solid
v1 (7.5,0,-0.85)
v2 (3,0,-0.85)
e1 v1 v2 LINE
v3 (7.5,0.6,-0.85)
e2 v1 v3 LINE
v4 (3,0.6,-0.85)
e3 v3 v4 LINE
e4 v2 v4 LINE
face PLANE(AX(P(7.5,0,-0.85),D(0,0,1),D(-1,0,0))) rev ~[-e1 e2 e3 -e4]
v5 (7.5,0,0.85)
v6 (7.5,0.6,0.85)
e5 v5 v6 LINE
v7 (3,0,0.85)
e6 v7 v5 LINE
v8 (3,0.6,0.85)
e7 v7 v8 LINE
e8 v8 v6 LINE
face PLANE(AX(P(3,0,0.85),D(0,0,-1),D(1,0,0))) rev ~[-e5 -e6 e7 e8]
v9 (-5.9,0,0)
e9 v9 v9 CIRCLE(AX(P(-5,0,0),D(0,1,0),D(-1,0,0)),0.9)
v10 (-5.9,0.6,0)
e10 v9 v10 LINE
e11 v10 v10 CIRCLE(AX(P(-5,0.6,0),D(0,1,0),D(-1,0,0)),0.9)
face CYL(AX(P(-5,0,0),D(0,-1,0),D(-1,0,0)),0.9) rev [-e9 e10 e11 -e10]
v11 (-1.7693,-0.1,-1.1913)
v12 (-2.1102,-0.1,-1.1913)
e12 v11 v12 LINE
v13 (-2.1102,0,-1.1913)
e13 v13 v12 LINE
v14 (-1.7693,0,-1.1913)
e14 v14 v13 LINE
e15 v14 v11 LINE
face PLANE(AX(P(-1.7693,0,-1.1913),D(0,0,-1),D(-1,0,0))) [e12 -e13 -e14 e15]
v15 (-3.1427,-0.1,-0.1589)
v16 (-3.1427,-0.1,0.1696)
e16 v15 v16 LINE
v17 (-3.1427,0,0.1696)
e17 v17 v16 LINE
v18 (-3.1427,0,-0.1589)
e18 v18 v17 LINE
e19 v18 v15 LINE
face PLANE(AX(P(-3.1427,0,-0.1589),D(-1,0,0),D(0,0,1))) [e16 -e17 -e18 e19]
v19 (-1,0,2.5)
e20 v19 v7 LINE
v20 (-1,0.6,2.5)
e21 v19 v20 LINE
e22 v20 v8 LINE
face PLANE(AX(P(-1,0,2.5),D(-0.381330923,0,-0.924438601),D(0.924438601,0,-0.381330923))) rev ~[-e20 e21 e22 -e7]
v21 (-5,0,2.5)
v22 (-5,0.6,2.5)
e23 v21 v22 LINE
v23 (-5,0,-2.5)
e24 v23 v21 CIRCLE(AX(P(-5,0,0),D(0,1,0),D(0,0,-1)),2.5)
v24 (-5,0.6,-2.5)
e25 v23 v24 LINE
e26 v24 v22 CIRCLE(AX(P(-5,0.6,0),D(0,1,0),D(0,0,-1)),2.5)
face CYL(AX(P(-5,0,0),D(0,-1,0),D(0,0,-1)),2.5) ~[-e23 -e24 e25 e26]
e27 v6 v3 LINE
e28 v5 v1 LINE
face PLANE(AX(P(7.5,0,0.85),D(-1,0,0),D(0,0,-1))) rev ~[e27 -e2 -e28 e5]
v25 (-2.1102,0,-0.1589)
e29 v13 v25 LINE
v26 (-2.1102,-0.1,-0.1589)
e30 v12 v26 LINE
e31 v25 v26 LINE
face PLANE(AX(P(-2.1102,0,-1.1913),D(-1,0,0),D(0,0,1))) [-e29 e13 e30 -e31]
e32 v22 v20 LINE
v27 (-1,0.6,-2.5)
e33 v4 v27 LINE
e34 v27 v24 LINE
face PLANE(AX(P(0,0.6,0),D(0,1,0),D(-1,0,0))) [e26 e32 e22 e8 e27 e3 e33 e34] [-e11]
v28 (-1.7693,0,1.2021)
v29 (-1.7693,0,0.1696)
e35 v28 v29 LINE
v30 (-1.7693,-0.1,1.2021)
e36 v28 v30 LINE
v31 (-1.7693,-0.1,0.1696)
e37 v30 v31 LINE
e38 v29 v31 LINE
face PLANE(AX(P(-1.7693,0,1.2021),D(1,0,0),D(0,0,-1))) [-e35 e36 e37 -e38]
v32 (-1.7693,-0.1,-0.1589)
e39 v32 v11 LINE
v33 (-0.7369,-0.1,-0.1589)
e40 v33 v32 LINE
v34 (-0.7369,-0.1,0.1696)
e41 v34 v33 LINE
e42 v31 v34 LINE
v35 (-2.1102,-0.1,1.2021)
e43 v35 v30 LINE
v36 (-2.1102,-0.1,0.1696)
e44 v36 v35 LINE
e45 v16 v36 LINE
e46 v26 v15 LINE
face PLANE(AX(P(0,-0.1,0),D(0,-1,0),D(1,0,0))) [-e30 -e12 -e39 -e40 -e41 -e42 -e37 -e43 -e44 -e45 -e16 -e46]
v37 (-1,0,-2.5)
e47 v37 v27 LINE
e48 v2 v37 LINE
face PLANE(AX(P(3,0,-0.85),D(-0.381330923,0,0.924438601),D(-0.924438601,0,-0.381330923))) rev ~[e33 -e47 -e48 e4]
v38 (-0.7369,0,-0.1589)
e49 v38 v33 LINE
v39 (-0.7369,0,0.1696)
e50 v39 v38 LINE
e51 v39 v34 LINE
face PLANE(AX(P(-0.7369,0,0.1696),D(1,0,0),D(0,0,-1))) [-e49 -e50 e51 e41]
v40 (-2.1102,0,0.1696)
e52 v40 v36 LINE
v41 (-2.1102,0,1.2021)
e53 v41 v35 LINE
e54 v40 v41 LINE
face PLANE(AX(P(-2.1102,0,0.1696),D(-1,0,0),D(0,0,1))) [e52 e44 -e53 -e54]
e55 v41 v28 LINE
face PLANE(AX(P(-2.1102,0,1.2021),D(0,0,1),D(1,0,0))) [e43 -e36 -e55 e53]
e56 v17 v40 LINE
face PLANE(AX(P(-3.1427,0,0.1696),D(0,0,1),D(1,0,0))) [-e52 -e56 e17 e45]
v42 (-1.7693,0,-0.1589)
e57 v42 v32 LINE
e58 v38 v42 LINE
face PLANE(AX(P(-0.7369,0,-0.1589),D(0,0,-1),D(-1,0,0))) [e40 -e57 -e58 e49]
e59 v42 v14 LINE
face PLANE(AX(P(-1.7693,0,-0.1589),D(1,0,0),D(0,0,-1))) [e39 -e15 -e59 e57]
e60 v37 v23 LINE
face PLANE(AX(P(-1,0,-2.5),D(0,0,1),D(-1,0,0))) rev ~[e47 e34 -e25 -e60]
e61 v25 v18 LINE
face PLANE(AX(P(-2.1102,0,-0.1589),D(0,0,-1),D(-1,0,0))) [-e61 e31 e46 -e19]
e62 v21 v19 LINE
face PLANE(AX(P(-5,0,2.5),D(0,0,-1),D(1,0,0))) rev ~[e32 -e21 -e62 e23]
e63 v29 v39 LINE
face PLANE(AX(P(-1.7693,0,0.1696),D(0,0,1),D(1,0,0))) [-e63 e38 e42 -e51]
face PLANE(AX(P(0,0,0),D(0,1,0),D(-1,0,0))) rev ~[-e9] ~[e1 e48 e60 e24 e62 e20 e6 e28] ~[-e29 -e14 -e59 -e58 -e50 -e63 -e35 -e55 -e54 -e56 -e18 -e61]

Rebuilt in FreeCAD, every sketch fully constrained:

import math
import FreeCAD as App
import Part
import Sketcher


def add_polygon(sketch, points):
    """Adds a closed chain of lines whose ends are joined by coincident constraints."""
    first, n = sketch.GeometryCount, len(points)
    for a, b in zip(points, points[1:] + points[:1]):
        sketch.addGeometry(Part.LineSegment(App.Vector(*a, 0), App.Vector(*b, 0)), False)
    for i in range(n):
        sketch.addConstraint(Sketcher.Constraint("Coincident", first + i, 2, first + (i + 1) % n, 1))

doc = App.newDocument("Part")
params = doc.addObject("Spreadsheet::Sheet", "Params")
for row, (alias, value) in enumerate([
    ("sketch1_diameter", "1.8 mm"),
    ("sketch1_radius", "2.5 mm"),
    ("sketch1_width", "4 mm"),
    ("sketch1_width2", "4.5 mm"),
    ("sketch1_height", "1.7 mm"),
    ("pad1_length", "0.6 mm"),
    ("pad2_length", "0.1 mm"),
], start=1):
    params.set(f"A{row}", alias)
    params.set(f"B{row}", "=" + value)
    params.setAlias(f"B{row}", alias)

body = doc.addObject("PartDesign::Body", "Body")

sketch1 = body.newObject("Sketcher::SketchObject", "Sketch")
sketch1.AttachmentSupport = (doc.getObject("XZ_Plane"), [""])
sketch1.MapMode = "FlatFace"
sketch1.addGeometry([
    Part.LineSegment(App.Vector(3, 0.8, 0), App.Vector(7.5, 0.8, 0)),
    Part.LineSegment(App.Vector(7.5, 0.8, 0), App.Vector(7.5, -0.8, 0)),
    Part.LineSegment(App.Vector(7.5, -0.8, 0), App.Vector(3, -0.8, 0)),
    Part.LineSegment(App.Vector(3, -0.8, 0), App.Vector(-1, -2.5, 0)),
    Part.LineSegment(App.Vector(-1, -2.5, 0), App.Vector(-5, -2.5, 0)),
    Part.ArcOfCircle(Part.Circle(App.Vector(-5, 0, 0), App.Vector(0, 0, 1), 2.5), math.radians(90), math.radians(270)),
    Part.LineSegment(App.Vector(-5, 2.5, 0), App.Vector(-1, 2.5, 0)),
    Part.LineSegment(App.Vector(-1, 2.5, 0), App.Vector(3, 0.8, 0)),
    Part.Circle(App.Vector(-5, 0, 0), App.Vector(0, 0, 1), 0.9),
], False)
sketch1.addConstraint([
    Sketcher.Constraint("Coincident", 0, 2, 1, 1),
    Sketcher.Constraint("Coincident", 1, 2, 2, 1),
    Sketcher.Constraint("Coincident", 2, 2, 3, 1),
    Sketcher.Constraint("Coincident", 3, 2, 4, 1),
    Sketcher.Constraint("Tangent", 4, 2, 5, 2),
    Sketcher.Constraint("Tangent", 5, 1, 6, 1),
    Sketcher.Constraint("Coincident", 6, 2, 7, 1),
    Sketcher.Constraint("Coincident", 7, 2, 0, 1),
    Sketcher.Constraint("Horizontal", 0),
    Sketcher.Constraint("Vertical", 1),
    Sketcher.Constraint("Horizontal", 2),
    Sketcher.Constraint("Horizontal", 4),
    Sketcher.Constraint("Horizontal", 6),
    Sketcher.Constraint("Coincident", 8, 3, 5, 3),
    Sketcher.Constraint("Symmetric", 3, 2, 6, 2, -1),
    Sketcher.Constraint("Symmetric", 2, 2, 7, 2, -1),
    Sketcher.Constraint("Diameter", 8, 1.8),
    Sketcher.Constraint("Radius", 5, 2.5),
    Sketcher.Constraint("DistanceX", 4, 2, 4, 1, 4.0),
    Sketcher.Constraint("DistanceX", 0, 1, 0, 2, 4.5),
    Sketcher.Constraint("DistanceY", 1, 2, 1, 1, 1.7),
    Sketcher.Constraint("DistanceX", 5, 3, -1, 1, 5.0),
    Sketcher.Constraint("DistanceX", -1, 1, 2, 2, 3.0),
])
sketch1.setExpression("Constraints[16]", "Params.sketch1_diameter")
sketch1.setExpression("Constraints[17]", "Params.sketch1_radius")
sketch1.setExpression("Constraints[18]", "Params.sketch1_width")
sketch1.setExpression("Constraints[19]", "Params.sketch1_width2")
sketch1.setExpression("Constraints[20]", "Params.sketch1_height")
pad1 = body.newObject("PartDesign::Pad", "Pad")
pad1.Profile = sketch1
pad1.setExpression("Length", "Params.pad1_length")
pad1.Reversed = True

sketch2 = body.newObject("Sketcher::SketchObject", "Sketch001")
sketch2.AttachmentSupport = (doc.getObject("XZ_Plane"), [""])
sketch2.MapMode = "FlatFace"
add_polygon(sketch2, [(-1.77, -0.16), (-0.74, -0.16), (-0.74, 0.17), (-1.77, 0.17), (-1.77, 1.2), (-2.11, 1.2), (-2.11, 0.17), (-3.14, 0.17), (-3.14, -0.16), (-2.11, -0.16), (-2.11, -1.19), (-1.77, -1.19)])
sketch2.addConstraint([
    Sketcher.Constraint("Horizontal", 0),
    Sketcher.Constraint("Vertical", 1),
    Sketcher.Constraint("Horizontal", 2),
    Sketcher.Constraint("Vertical", 3),
    Sketcher.Constraint("Horizontal", 4),
    Sketcher.Constraint("Vertical", 5),
    Sketcher.Constraint("Horizontal", 6),
    Sketcher.Constraint("Vertical", 7),
    Sketcher.Constraint("Horizontal", 8),
    Sketcher.Constraint("Vertical", 9),
    Sketcher.Constraint("Horizontal", 10),
    Sketcher.Constraint("Vertical", 11),
    Sketcher.Constraint("Horizontal", 2, 2, 5, 2),
    Sketcher.Constraint("Horizontal", 0, 2, 7, 2),
    Sketcher.Constraint("Vertical", 5, 2, 8, 2),
    Sketcher.Constraint("Vertical", 3, 2, 10, 2),
    Sketcher.Constraint("Equal", 2, 6),
    Sketcher.Constraint("Equal", 8, 3),
    Sketcher.Constraint("Equal", 5, 9),
    Sketcher.Constraint("DistanceX", 4, 2, 4, 1, 0.341),
    Sketcher.Constraint("DistanceX", 0, 1, 0, 2, 1.0324),
    Sketcher.Constraint("DistanceY", 1, 1, 1, 2, 0.3285),
    Sketcher.Constraint("DistanceX", 0, 2, -1, 1, 0.737),
    Sketcher.Constraint("DistanceY", 0, 2, -1, 1, 0.159),
])
pad2 = body.newObject("PartDesign::Pad", "Pad001")
pad2.Profile = sketch2
pad2.setExpression("Length", "Params.pad2_length")

doc.recompute()
